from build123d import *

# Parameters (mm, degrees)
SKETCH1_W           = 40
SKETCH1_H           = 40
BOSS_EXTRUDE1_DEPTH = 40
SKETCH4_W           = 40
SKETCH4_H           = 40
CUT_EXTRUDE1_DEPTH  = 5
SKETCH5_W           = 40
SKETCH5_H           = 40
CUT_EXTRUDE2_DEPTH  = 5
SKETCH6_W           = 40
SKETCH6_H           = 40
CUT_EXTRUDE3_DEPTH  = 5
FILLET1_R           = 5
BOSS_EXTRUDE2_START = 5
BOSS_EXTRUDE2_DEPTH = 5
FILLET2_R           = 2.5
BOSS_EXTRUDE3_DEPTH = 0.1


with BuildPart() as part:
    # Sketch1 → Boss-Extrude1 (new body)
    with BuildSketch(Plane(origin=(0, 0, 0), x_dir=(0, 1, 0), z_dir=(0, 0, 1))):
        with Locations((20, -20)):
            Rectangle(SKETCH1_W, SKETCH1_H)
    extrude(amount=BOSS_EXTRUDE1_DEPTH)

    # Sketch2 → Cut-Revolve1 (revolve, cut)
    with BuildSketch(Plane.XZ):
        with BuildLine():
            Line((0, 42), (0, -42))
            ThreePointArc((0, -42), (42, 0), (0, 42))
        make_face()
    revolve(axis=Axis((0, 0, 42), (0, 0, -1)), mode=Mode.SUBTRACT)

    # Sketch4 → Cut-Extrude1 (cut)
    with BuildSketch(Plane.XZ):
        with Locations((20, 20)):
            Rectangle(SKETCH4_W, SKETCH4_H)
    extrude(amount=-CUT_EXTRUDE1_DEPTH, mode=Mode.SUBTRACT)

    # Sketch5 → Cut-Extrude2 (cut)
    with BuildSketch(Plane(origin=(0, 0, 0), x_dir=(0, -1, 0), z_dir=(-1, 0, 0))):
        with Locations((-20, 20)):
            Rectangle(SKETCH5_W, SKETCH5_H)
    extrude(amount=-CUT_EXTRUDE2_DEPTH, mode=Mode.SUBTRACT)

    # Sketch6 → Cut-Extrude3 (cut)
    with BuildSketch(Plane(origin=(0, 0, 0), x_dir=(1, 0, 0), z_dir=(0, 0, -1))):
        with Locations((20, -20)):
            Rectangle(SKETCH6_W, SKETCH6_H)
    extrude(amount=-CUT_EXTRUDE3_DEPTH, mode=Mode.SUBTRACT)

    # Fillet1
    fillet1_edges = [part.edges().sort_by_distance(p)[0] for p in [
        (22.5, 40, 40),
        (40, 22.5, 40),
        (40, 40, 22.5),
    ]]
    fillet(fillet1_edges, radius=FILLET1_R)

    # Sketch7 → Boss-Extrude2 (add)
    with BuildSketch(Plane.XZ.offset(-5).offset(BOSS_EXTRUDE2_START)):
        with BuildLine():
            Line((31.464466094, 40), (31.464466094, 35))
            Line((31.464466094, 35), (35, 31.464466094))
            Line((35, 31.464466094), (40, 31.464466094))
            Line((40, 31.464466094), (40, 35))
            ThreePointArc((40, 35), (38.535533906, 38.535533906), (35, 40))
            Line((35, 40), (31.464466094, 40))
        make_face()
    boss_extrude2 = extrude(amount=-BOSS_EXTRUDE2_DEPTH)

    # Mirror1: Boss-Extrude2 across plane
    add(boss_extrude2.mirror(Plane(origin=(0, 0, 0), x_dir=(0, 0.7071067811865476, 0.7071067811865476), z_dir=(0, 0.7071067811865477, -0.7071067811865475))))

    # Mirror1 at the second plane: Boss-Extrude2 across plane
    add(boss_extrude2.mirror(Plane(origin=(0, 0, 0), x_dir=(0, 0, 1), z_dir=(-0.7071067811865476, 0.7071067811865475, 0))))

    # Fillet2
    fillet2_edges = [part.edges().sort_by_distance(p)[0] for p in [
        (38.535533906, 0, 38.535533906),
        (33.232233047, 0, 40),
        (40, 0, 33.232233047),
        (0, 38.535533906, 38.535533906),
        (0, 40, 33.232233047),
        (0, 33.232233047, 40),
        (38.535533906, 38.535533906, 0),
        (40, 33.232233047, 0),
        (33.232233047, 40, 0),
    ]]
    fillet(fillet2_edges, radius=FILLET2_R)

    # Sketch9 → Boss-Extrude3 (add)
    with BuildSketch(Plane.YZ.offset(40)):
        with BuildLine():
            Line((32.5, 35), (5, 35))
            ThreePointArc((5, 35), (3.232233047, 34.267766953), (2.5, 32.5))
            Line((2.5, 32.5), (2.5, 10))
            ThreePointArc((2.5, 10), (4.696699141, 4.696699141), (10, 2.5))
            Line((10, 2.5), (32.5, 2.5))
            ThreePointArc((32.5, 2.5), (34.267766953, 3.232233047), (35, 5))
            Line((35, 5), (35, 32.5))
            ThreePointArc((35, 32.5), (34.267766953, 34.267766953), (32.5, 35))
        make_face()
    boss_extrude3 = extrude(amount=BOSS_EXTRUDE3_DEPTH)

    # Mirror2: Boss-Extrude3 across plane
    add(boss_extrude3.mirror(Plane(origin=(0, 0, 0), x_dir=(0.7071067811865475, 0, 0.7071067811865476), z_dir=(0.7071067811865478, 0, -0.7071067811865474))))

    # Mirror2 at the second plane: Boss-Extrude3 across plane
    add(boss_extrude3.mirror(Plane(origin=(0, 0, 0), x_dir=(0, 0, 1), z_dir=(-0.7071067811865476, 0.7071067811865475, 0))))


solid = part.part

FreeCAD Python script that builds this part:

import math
import FreeCAD as App
import Part
import Sketcher

V = App.Vector


def edges_at(feature, points):
    """Names of the edges that pass closest to the given points."""
    edges = feature.Shape.Edges
    near = lambda p: min(range(len(edges)), key=lambda i: edges[i].distToShape(Part.Vertex(*p))[0])
    return sorted({f"Edge{near(p) + 1}" for p in points})


def add_polygon(sketch, points):
    """Adds a closed chain of lines whose ends are joined by coincident constraints."""
    first, n = sketch.GeometryCount, len(points)
    for a, b in zip(points, points[1:] + points[:1]):
        sketch.addGeometry(Part.LineSegment(App.Vector(*a, 0), App.Vector(*b, 0)), False)
    for i in range(n):
        sketch.addConstraint(Sketcher.Constraint("Coincident", first + i, 2, first + (i + 1) % n, 1))

doc = App.newDocument("Part")
body = doc.addObject("PartDesign::Body", "Body")

sketch1 = doc.addObject("Sketcher::SketchObject", "Sketch")
body.addObject(sketch1)
sketch1.AttachmentSupport = (doc.XY_Plane, [""])
sketch1.MapMode = "FlatFace"
add_polygon(sketch1, [(0, 0), (40, 0), (40, 40), (0, 40)])
sketch1.addConstraint(Sketcher.Constraint("Horizontal", 0))
sketch1.addConstraint(Sketcher.Constraint("Vertical", 1))
sketch1.addConstraint(Sketcher.Constraint("Horizontal", 2))
sketch1.addConstraint(Sketcher.Constraint("Vertical", 3))
sketch1.addConstraint(Sketcher.Constraint("Coincident", 3, 2, -1, 1))
sketch1.addConstraint(Sketcher.Constraint("Equal", 2, 1))
sketch1.addConstraint(Sketcher.Constraint("DistanceX", 0, 1, 0, 2, 40.0))
pad1 = doc.addObject("PartDesign::Pad", "Pad")
body.addObject(pad1)
pad1.Profile = sketch1
pad1.Length = 40

sketch2 = doc.addObject("Sketcher::SketchObject", "Sketch001")
body.addObject(sketch2)
sketch2.AttachmentSupport = (doc.XZ_Plane, [""])
sketch2.MapMode = "FlatFace"
sketch2.addGeometry(Part.LineSegment(V(0, 42, 0), V(0, -42, 0)), False)
sketch2.addGeometry(Part.ArcOfCircle(Part.Circle(V(0, 0, 0), V(0, 0, 1), 42), math.radians(-90), math.radians(90)), False)
sketch2.addConstraint(Sketcher.Constraint("Coincident", 0, 1, 1, 2))
sketch2.addConstraint(Sketcher.Constraint("Coincident", 1, 1, 0, 2))
sketch2.addConstraint(Sketcher.Constraint("Vertical", 0))
sketch2.addConstraint(Sketcher.Constraint("Coincident", 1, 3, -1, 1))
sketch2.addConstraint(Sketcher.Constraint("PointOnObject", 0, 1, -2))
sketch2.addConstraint(Sketcher.Constraint("Radius", 1, 42.0))
groove = doc.addObject("PartDesign::Groove", "Groove")
body.addObject(groove)
groove.Profile = sketch2
groove.ReferenceAxis = (sketch2, ["V_Axis"])
groove.Angle = 360

sketch3 = doc.addObject("Sketcher::SketchObject", "Sketch002")
body.addObject(sketch3)
sketch3.AttachmentSupport = (doc.XZ_Plane, [""])
sketch3.MapMode = "FlatFace"
add_polygon(sketch3, [(0, 40), (0, 0), (40, 0), (40, 40)])
sketch3.addConstraint(Sketcher.Constraint("Vertical", 0))
sketch3.addConstraint(Sketcher.Constraint("Horizontal", 1))
sketch3.addConstraint(Sketcher.Constraint("Vertical", 2))
sketch3.addConstraint(Sketcher.Constraint("Horizontal", 3))
sketch3.addConstraint(Sketcher.Constraint("Coincident", 0, 2, -1, 1))
sketch3.addConstraint(Sketcher.Constraint("Equal", 3, 0))
sketch3.addConstraint(Sketcher.Constraint("DistanceX", 1, 1, 1, 2, 40.0))
pocket1 = doc.addObject("PartDesign::Pocket", "Pocket")
body.addObject(pocket1)
pocket1.Profile = sketch3
pocket1.Length = 5

sketch4 = doc.addObject("Sketcher::SketchObject", "Sketch003")
body.addObject(sketch4)
sketch4.AttachmentSupport = (doc.YZ_Plane, [""])
sketch4.MapMode = "FlatFace"
add_polygon(sketch4, [(40, 40), (40, 0), (0, 0), (0, 40)])
sketch4.addConstraint(Sketcher.Constraint("Vertical", 0))
sketch4.addConstraint(Sketcher.Constraint("Horizontal", 1))
sketch4.addConstraint(Sketcher.Constraint("Vertical", 2))
sketch4.addConstraint(Sketcher.Constraint("Horizontal", 3))
sketch4.addConstraint(Sketcher.Constraint("Coincident", 1, 2, -1, 1))
sketch4.addConstraint(Sketcher.Constraint("Equal", 3, 0))
sketch4.addConstraint(Sketcher.Constraint("DistanceX", 1, 2, 1, 1, 40.0))
pocket2 = doc.addObject("PartDesign::Pocket", "Pocket001")
body.addObject(pocket2)
pocket2.Profile = sketch4
pocket2.Length = 5
pocket2.Reversed = True

sketch5 = doc.addObject("Sketcher::SketchObject", "Sketch004")
body.addObject(sketch5)
sketch5.AttachmentSupport = (doc.XY_Plane, [""])
sketch5.MapMode = "FlatFace"
add_polygon(sketch5, [(0, 0), (0, 40), (40, 40), (40, 0)])
sketch5.addConstraint(Sketcher.Constraint("Vertical", 0))
sketch5.addConstraint(Sketcher.Constraint("Horizontal", 1))
sketch5.addConstraint(Sketcher.Constraint("Vertical", 2))
sketch5.addConstraint(Sketcher.Constraint("Horizontal", 3))
sketch5.addConstraint(Sketcher.Constraint("Coincident", 3, 2, -1, 1))
sketch5.addConstraint(Sketcher.Constraint("Equal", 3, 0))
sketch5.addConstraint(Sketcher.Constraint("DistanceX", 1, 1, 1, 2, 40.0))
pocket3 = doc.addObject("PartDesign::Pocket", "Pocket002")
body.addObject(pocket3)
pocket3.Profile = sketch5
pocket3.Length = 5
pocket3.Reversed = True
doc.recompute()

fillet = doc.addObject("PartDesign::Fillet", "Fillet")
body.addObject(fillet)
fillet.Base = (pocket3, edges_at(pocket3, [(22.5, 40, 40), (40, 22.5, 40), (40, 40, 22.5)]))
fillet.Radius = 5

sketch6 = doc.addObject("Sketcher::SketchObject", "Sketch005")
body.addObject(sketch6)
sketch6.AttachmentSupport = (doc.XZ_Plane, [""])
sketch6.MapMode = "FlatFace"
sketch6.addGeometry(Part.LineSegment(V(31.464466, 40, 0), V(31.464466, 35, 0)), False)
sketch6.addGeometry(Part.LineSegment(V(31.464466, 35, 0), V(35, 31.464466, 0)), False)
sketch6.addGeometry(Part.LineSegment(V(35, 31.464466, 0), V(40, 31.464466, 0)), False)
sketch6.addGeometry(Part.LineSegment(V(40, 31.464466, 0), V(40, 35, 0)), False)
sketch6.addGeometry(Part.ArcOfCircle(Part.Circle(V(35, 35, 0), V(0, 0, 1), 5), math.radians(0), math.radians(90)), False)
sketch6.addGeometry(Part.LineSegment(V(35, 40, 0), V(31.464466, 40, 0)), False)
sketch6.addConstraint(Sketcher.Constraint("Coincident", 0, 2, 1, 1))
sketch6.addConstraint(Sketcher.Constraint("Coincident", 1, 2, 2, 1))
sketch6.addConstraint(Sketcher.Constraint("Coincident", 2, 2, 3, 1))
sketch6.addConstraint(Sketcher.Constraint("Tangent", 3, 2, 4, 1))
sketch6.addConstraint(Sketcher.Constraint("Tangent", 4, 2, 5, 1))
sketch6.addConstraint(Sketcher.Constraint("Coincident", 5, 2, 0, 1))
sketch6.addConstraint(Sketcher.Constraint("Vertical", 0))
sketch6.addConstraint(Sketcher.Constraint("Horizontal", 2))
sketch6.addConstraint(Sketcher.Constraint("Vertical", 3))
sketch6.addConstraint(Sketcher.Constraint("Horizontal", 5))
sketch6.addConstraint(Sketcher.Constraint("Horizontal", 4, 3, 0, 2))
sketch6.addConstraint(Sketcher.Constraint("Vertical", 4, 3, 1, 2))
sketch6.addConstraint(Sketcher.Constraint("Equal", 5, 3))
sketch6.addConstraint(Sketcher.Constraint("Radius", 4, 5.0))
sketch6.addConstraint(Sketcher.Constraint("Distance", 1, 5.0))
sketch6.addConstraint(Sketcher.Constraint("DistanceX", -1, 1, 4, 3, 35.0))
sketch6.addConstraint(Sketcher.Constraint("DistanceY", -1, 1, 4, 3, 35.0))
pad2 = doc.addObject("PartDesign::Pad", "Pad001")
body.addObject(pad2)
pad2.Profile = sketch6
pad2.Length = 5
pad2.Reversed = True
doc.recompute()

datumplane = doc.addObject("PartDesign::Plane", "DatumPlane")
body.addObject(datumplane)
datumplane.Placement = App.Placement(V(0, 0, 0), App.Rotation(V(0, -0.707106781, -0.707106781), V(-1, 0, 0), V(0, 0.707106781, -0.707106781), "ZXY"))
mirrored = doc.addObject("PartDesign::Mirrored", "Mirrored")
body.addObject(mirrored)
mirrored.Originals = [pad2]
mirrored.MirrorPlane = (datumplane, [""])
body.Tip = mirrored
doc.recompute()

datumplane2 = doc.addObject("PartDesign::Plane", "DatumPlane001")
body.addObject(datumplane2)
datumplane2.Placement = App.Placement(V(0, 0, 0), App.Rotation(V(0.707106781, 0.707106781, 0), V(0, 0, -1), V(-0.707106781, 0.707106781, 0), "ZXY"))
mirrored2 = doc.addObject("PartDesign::Mirrored", "Mirrored001")
body.addObject(mirrored2)
mirrored2.Originals = [pad2]
mirrored2.MirrorPlane = (datumplane2, [""])
body.Tip = mirrored2
doc.recompute()

fillet2 = doc.addObject("PartDesign::Fillet", "Fillet001")
body.addObject(fillet2)
fillet2.Base = (mirrored2, edges_at(mirrored2, [
    (38.536, 0, 38.536),
    (33.232, 0, 40),
    (40, 0, 33.232),
    (0, 38.536, 38.536),
    (0, 40, 33.232),
    (0, 33.232, 40),
    (38.536, 38.536, 0),
    (40, 33.232, 0),
    (33.232, 40, 0),
]))
fillet2.Radius = 2.5

sketch7 = doc.addObject("Sketcher::SketchObject", "Sketch006")
body.addObject(sketch7)
sketch7.AttachmentSupport = (doc.YZ_Plane, [""])
sketch7.MapMode = "FlatFace"
sketch7.AttachmentOffset = App.Placement(V(0, 0, 40), App.Rotation())
sketch7.addGeometry(Part.LineSegment(V(32.5, 35, 0), V(5, 35, 0)), False)
sketch7.addGeometry(Part.ArcOfCircle(Part.Circle(V(5, 32.5, 0), V(0, 0, 1), 2.5), math.radians(90), math.radians(180)), False)
sketch7.addGeometry(Part.LineSegment(V(2.5, 32.5, 0), V(2.5, 10, 0)), False)
sketch7.addGeometry(Part.ArcOfCircle(Part.Circle(V(10, 10, 0), V(0, 0, 1), 7.5), math.radians(180), math.radians(270)), False)
sketch7.addGeometry(Part.LineSegment(V(10, 2.5, 0), V(32.5, 2.5, 0)), False)
sketch7.addGeometry(Part.ArcOfCircle(Part.Circle(V(32.5, 5, 0), V(0, 0, 1), 2.5), math.radians(-90), math.radians(0)), False)
sketch7.addGeometry(Part.LineSegment(V(35, 5, 0), V(35, 32.5, 0)), False)
sketch7.addGeometry(Part.ArcOfCircle(Part.Circle(V(32.5, 32.5, 0), V(0, 0, 1), 2.5), math.radians(0), math.radians(90)), False)
sketch7.addConstraint(Sketcher.Constraint("Tangent", 0, 2, 1, 1))
sketch7.addConstraint(Sketcher.Constraint("Tangent", 1, 2, 2, 1))
sketch7.addConstraint(Sketcher.Constraint("Tangent", 2, 2, 3, 1))
sketch7.addConstraint(Sketcher.Constraint("Tangent", 3, 2, 4, 1))
sketch7.addConstraint(Sketcher.Constraint("Tangent", 4, 2, 5, 1))
sketch7.addConstraint(Sketcher.Constraint("Tangent", 5, 2, 6, 1))
sketch7.addConstraint(Sketcher.Constraint("Tangent", 6, 2, 7, 1))
sketch7.addConstraint(Sketcher.Constraint("Tangent", 7, 2, 0, 1))
sketch7.addConstraint(Sketcher.Constraint("Horizontal", 0))
sketch7.addConstraint(Sketcher.Constraint("Vertical", 2))
sketch7.addConstraint(Sketcher.Constraint("Horizontal", 4))
sketch7.addConstraint(Sketcher.Constraint("Vertical", 6))
sketch7.addConstraint(Sketcher.Constraint("Equal", 1, 5))
sketch7.addConstraint(Sketcher.Constraint("Equal", 5, 7))
sketch7.addConstraint(Sketcher.Constraint("Equal", 4, 2))
sketch7.addConstraint(Sketcher.Constraint("Radius", 1, 2.5))
sketch7.addConstraint(Sketcher.Constraint("Radius", 3, 7.5))
sketch7.addConstraint(Sketcher.Constraint("DistanceX", 0, 2, 0, 1, 27.5))
sketch7.addConstraint(Sketcher.Constraint("DistanceX", -1, 1, 1, 3, 5.0))
sketch7.addConstraint(Sketcher.Constraint("DistanceY", -1, 1, 3, 3, 10.0))
pad3 = doc.addObject("PartDesign::Pad", "Pad002")
body.addObject(pad3)
pad3.Profile = sketch7
pad3.Length = 0.1
doc.recompute()

datumplane3 = doc.addObject("PartDesign::Plane", "DatumPlane002")
body.addObject(datumplane3)
datumplane3.Placement = App.Placement(V(0, 0, 0), App.Rotation(V(0.707106781, 0, 0.707106781), V(0, -1, 0), V(0.707106781, 0, -0.707106781), "ZXY"))
mirrored3 = doc.addObject("PartDesign::Mirrored", "Mirrored002")
body.addObject(mirrored3)
mirrored3.Originals = [pad3]
mirrored3.MirrorPlane = (datumplane3, [""])
body.Tip = mirrored3
doc.recompute()

datumplane4 = doc.addObject("PartDesign::Plane", "DatumPlane003")
body.addObject(datumplane4)
datumplane4.Placement = App.Placement(V(0, 0, 0), App.Rotation(V(0.707106781, 0.707106781, 0), V(0, 0, -1), V(-0.707106781, 0.707106781, 0), "ZXY"))
mirrored4 = doc.addObject("PartDesign::Mirrored", "Mirrored003")
body.addObject(mirrored4)
mirrored4.Originals = [pad3]
mirrored4.MirrorPlane = (datumplane4, [""])
body.Tip = mirrored4

doc.recompute()
